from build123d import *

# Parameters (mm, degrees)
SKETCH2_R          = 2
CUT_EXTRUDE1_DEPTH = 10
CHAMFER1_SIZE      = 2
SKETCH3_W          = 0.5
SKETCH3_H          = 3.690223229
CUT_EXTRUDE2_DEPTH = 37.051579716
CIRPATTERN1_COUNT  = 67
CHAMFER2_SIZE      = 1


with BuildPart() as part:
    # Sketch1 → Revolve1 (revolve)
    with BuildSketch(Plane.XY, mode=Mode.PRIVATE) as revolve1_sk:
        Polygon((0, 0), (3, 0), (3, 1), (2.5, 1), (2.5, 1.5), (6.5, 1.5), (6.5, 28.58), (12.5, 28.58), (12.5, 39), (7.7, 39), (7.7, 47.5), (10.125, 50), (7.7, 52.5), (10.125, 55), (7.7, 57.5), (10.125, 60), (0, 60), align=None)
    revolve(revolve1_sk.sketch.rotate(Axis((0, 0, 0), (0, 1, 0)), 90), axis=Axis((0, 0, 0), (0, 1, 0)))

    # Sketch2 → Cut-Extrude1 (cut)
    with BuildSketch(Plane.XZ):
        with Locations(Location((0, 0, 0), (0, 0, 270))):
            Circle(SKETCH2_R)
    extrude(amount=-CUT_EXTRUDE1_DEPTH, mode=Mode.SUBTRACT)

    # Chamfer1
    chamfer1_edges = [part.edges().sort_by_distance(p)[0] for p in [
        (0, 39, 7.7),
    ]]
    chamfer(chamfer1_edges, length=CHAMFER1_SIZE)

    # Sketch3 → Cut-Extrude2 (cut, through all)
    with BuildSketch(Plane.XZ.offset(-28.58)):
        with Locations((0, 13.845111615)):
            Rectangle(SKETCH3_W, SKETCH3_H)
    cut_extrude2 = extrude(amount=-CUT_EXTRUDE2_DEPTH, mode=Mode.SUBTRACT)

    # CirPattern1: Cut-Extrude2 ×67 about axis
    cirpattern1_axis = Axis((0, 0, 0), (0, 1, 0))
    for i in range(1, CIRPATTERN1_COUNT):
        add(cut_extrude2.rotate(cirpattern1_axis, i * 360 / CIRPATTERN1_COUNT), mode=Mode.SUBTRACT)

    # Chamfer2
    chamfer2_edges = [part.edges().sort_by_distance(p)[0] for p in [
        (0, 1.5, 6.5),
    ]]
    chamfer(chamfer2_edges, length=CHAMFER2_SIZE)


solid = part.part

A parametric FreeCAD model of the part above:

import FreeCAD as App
import Part
import Sketcher

V = App.Vector


def edges_at(feature, points):
    """Names of the edges that pass closest to the given points."""
    edges = feature.Shape.Edges
    near = lambda p: min(range(len(edges)), key=lambda i: edges[i].distToShape(Part.Vertex(*p))[0])
    return sorted({f"Edge{near(p) + 1}" for p in points})

doc = App.newDocument("Part")
body = doc.addObject("PartDesign::Body", "Body")

sketch1 = body.newObject("Sketcher::SketchObject", "Sketch")
sketch1.AttachmentSupport = (doc.getObject("XY_Plane"), [""])
sketch1.MapMode = "FlatFace"
sketch1.addGeometry(Part.LineSegment(V(0, 0, 0), V(3, 0, 0)), False)
sketch1.addGeometry(Part.LineSegment(V(3, 0, 0), V(3, 1, 0)), False)
sketch1.addGeometry(Part.LineSegment(V(3, 1, 0), V(2.5, 1, 0)), False)
sketch1.addGeometry(Part.LineSegment(V(2.5, 1, 0), V(2.5, 1.5, 0)), False)
sketch1.addGeometry(Part.LineSegment(V(2.5, 1.5, 0), V(6.5, 1.5, 0)), False)
sketch1.addGeometry(Part.LineSegment(V(6.5, 1.5, 0), V(6.5, 28.6, 0)), False)
sketch1.addGeometry(Part.LineSegment(V(6.5, 28.6, 0), V(12.5, 28.6, 0)), False)
sketch1.addGeometry(Part.LineSegment(V(12.5, 28.6, 0), V(12.5, 39, 0)), False)
sketch1.addGeometry(Part.LineSegment(V(12.5, 39, 0), V(7.7, 39, 0)), False)
sketch1.addGeometry(Part.LineSegment(V(7.7, 39, 0), V(7.7, 47.5, 0)), False)
sketch1.addGeometry(Part.LineSegment(V(7.7, 47.5, 0), V(10.1, 50, 0)), False)
sketch1.addGeometry(Part.LineSegment(V(10.1, 50, 0), V(7.7, 52.5, 0)), False)
sketch1.addGeometry(Part.LineSegment(V(7.7, 52.5, 0), V(10.1, 55, 0)), False)
sketch1.addGeometry(Part.LineSegment(V(10.1, 55, 0), V(7.7, 57.5, 0)), False)
sketch1.addGeometry(Part.LineSegment(V(7.7, 57.5, 0), V(10.1, 60, 0)), False)
sketch1.addGeometry(Part.LineSegment(V(10.1, 60, 0), V(0, 60, 0)), False)
sketch1.addGeometry(Part.LineSegment(V(0, 60, 0), V(0, 0, 0)), False)
sketch1.addConstraint(Sketcher.Constraint("Coincident", 0, 2, 1, 1))
sketch1.addConstraint(Sketcher.Constraint("Coincident", 1, 2, 2, 1))
sketch1.addConstraint(Sketcher.Constraint("Coincident", 2, 2, 3, 1))
sketch1.addConstraint(Sketcher.Constraint("Coincident", 3, 2, 4, 1))
sketch1.addConstraint(Sketcher.Constraint("Coincident", 4, 2, 5, 1))
sketch1.addConstraint(Sketcher.Constraint("Coincident", 5, 2, 6, 1))
sketch1.addConstraint(Sketcher.Constraint("Coincident", 6, 2, 7, 1))
sketch1.addConstraint(Sketcher.Constraint("Coincident", 7, 2, 8, 1))
sketch1.addConstraint(Sketcher.Constraint("Coincident", 8, 2, 9, 1))
sketch1.addConstraint(Sketcher.Constraint("Coincident", 9, 2, 10, 1))
sketch1.addConstraint(Sketcher.Constraint("Coincident", 10, 2, 11, 1))
sketch1.addConstraint(Sketcher.Constraint("Coincident", 11, 2, 12, 1))
sketch1.addConstraint(Sketcher.Constraint("Coincident", 12, 2, 13, 1))
sketch1.addConstraint(Sketcher.Constraint("Coincident", 13, 2, 14, 1))
sketch1.addConstraint(Sketcher.Constraint("Coincident", 14, 2, 15, 1))
sketch1.addConstraint(Sketcher.Constraint("Coincident", 15, 2, 16, 1))
sketch1.addConstraint(Sketcher.Constraint("Coincident", 16, 2, 0, 1))
sketch1.addConstraint(Sketcher.Constraint("Horizontal", 0))
sketch1.addConstraint(Sketcher.Constraint("Vertical", 1))
sketch1.addConstraint(Sketcher.Constraint("Horizontal", 2))
sketch1.addConstraint(Sketcher.Constraint("Vertical", 3))
sketch1.addConstraint(Sketcher.Constraint("Horizontal", 4))
sketch1.addConstraint(Sketcher.Constraint("Vertical", 5))
sketch1.addConstraint(Sketcher.Constraint("Horizontal", 6))
sketch1.addConstraint(Sketcher.Constraint("Vertical", 7))
sketch1.addConstraint(Sketcher.Constraint("Horizontal", 8))
sketch1.addConstraint(Sketcher.Constraint("Vertical", 9))
sketch1.addConstraint(Sketcher.Constraint("Horizontal", 15))
sketch1.addConstraint(Sketcher.Constraint("Vertical", 16))
sketch1.addConstraint(Sketcher.Constraint("Coincident", 16, 2, -1, 1))
sketch1.addConstraint(Sketcher.Constraint("Parallel", 10, 12))
sketch1.addConstraint(Sketcher.Constraint("Parallel", 11, 13))
sketch1.addConstraint(Sketcher.Constraint("Parallel", 12, 14))
sketch1.addConstraint(Sketcher.Constraint("Vertical", 9, 2, 11, 2))
sketch1.addConstraint(Sketcher.Constraint("Vertical", 10, 2, 12, 2))
sketch1.addConstraint(Sketcher.Constraint("Vertical", 11, 2, 13, 2))
sketch1.addConstraint(Sketcher.Constraint("Vertical", 12, 2, 14, 2))
sketch1.addConstraint(Sketcher.Constraint("Equal", 2, 3))
sketch1.addConstraint(Sketcher.Constraint("Equal", 10, 11))
sketch1.addConstraint(Sketcher.Constraint("DistanceX", 0, 1, 0, 2, 3.0))
sketch1.addConstraint(Sketcher.Constraint("DistanceX", 4, 1, 4, 2, 4.0))
sketch1.addConstraint(Sketcher.Constraint("DistanceX", 6, 1, 6, 2, 6.0))
sketch1.addConstraint(Sketcher.Constraint("DistanceY", 1, 1, 1, 2, 1.0))
sketch1.addConstraint(Sketcher.Constraint("DistanceY", 16, 2, 16, 1, 60.0))
sketch1.addConstraint(Sketcher.Constraint("DistanceX", 2, 2, 2, 1, 0.5))
sketch1.addConstraint(Sketcher.Constraint("DistanceX", 8, 2, 8, 1, 4.8))
sketch1.addConstraint(Sketcher.Constraint("DistanceY", 9, 1, 9, 2, 8.5))
sketch1.addConstraint(Sketcher.Constraint("DistanceY", -1, 1, 7, 2, 39.0))
sketch1.addConstraint(Sketcher.Constraint("DistanceY", 5, 1, 5, 2, 27.08))
sketch1.addConstraint(Sketcher.Constraint("DistanceX", 15, 2, 15, 1, 10.125))
revolution = body.newObject("PartDesign::Revolution", "Revolution")
revolution.Profile = sketch1
revolution.ReferenceAxis = (sketch1, ["V_Axis"])
revolution.Angle = 360

sketch2 = body.newObject("Sketcher::SketchObject", "Sketch001")
sketch2.AttachmentSupport = (doc.getObject("XZ_Plane"), [""])
sketch2.MapMode = "FlatFace"
sketch2.addGeometry(Part.Circle(V(0, 0, 0), V(0, 0, 1), 2), False)
sketch2.addConstraint(Sketcher.Constraint("Coincident", 0, 3, -1, 1))
sketch2.addConstraint(Sketcher.Constraint("Diameter", 0, 4.0))
pocket1 = body.newObject("PartDesign::Pocket", "Pocket")
pocket1.Profile = sketch2
pocket1.Length = 10
doc.recompute()

chamfer = body.newObject("PartDesign::Chamfer", "Chamfer")
chamfer.Base = (pocket1, edges_at(pocket1, [(0, 39, 7.7)]))
chamfer.Size = 2

sketch3 = body.newObject("Sketcher::SketchObject", "Sketch002")
sketch3.AttachmentSupport = (doc.getObject("XZ_Plane"), [""])
sketch3.MapMode = "FlatFace"
sketch3.AttachmentOffset = App.Placement(V(0, 0, -28.58), App.Rotation())
sketch3.addGeometry(Part.LineSegment(V(-0.2, 15.7, 0), V(-0.2, 12, 0)), False)
sketch3.addGeometry(Part.LineSegment(V(-0.2, 12, 0), V(0.2, 12, 0)), False)
sketch3.addGeometry(Part.LineSegment(V(0.2, 12, 0), V(0.2, 15.7, 0)), False)
sketch3.addGeometry(Part.LineSegment(V(0.2, 15.7, 0), V(-0.2, 15.7, 0)), False)
sketch3.addConstraint(Sketcher.Constraint("Coincident", 0, 2, 1, 1))
sketch3.addConstraint(Sketcher.Constraint("Coincident", 1, 2, 2, 1))
sketch3.addConstraint(Sketcher.Constraint("Coincident", 2, 2, 3, 1))
sketch3.addConstraint(Sketcher.Constraint("Coincident", 3, 2, 0, 1))
sketch3.addConstraint(Sketcher.Constraint("Vertical", 0))
sketch3.addConstraint(Sketcher.Constraint("Horizontal", 1))
sketch3.addConstraint(Sketcher.Constraint("Vertical", 2))
sketch3.addConstraint(Sketcher.Constraint("Horizontal", 3))
sketch3.addConstraint(Sketcher.Constraint("DistanceX", 1, 1, 1, 2, 0.5))
sketch3.addConstraint(Sketcher.Constraint("DistanceY", -1, 1, 0, 2, 12.0))
sketch3.addConstraint(Sketcher.Constraint("DistanceX", 0, 2, -1, 1, 0.25))
sketch3.addConstraint(Sketcher.Constraint("DistanceY", 0, 2, 0, 1, 3.690223))
pocket2 = body.newObject("PartDesign::Pocket", "Pocket001")
pocket2.Profile = sketch3
pocket2.Type = "ThroughAll"
doc.recompute()

polarpattern = body.newObject("PartDesign::PolarPattern", "PolarPattern")
polarpattern.Originals = [pocket2]
polarpattern.Axis = (doc.getObject("Y_Axis"), [""])
polarpattern.Angle = 360
polarpattern.Occurrences = 67
body.Tip = polarpattern
doc.recompute()

chamfer2 = body.newObject("PartDesign::Chamfer", "Chamfer001")
chamfer2.Base = (polarpattern, edges_at(polarpattern, [(0, 1.5, 6.5)]))
chamfer2.Size = 1

doc.recompute()
